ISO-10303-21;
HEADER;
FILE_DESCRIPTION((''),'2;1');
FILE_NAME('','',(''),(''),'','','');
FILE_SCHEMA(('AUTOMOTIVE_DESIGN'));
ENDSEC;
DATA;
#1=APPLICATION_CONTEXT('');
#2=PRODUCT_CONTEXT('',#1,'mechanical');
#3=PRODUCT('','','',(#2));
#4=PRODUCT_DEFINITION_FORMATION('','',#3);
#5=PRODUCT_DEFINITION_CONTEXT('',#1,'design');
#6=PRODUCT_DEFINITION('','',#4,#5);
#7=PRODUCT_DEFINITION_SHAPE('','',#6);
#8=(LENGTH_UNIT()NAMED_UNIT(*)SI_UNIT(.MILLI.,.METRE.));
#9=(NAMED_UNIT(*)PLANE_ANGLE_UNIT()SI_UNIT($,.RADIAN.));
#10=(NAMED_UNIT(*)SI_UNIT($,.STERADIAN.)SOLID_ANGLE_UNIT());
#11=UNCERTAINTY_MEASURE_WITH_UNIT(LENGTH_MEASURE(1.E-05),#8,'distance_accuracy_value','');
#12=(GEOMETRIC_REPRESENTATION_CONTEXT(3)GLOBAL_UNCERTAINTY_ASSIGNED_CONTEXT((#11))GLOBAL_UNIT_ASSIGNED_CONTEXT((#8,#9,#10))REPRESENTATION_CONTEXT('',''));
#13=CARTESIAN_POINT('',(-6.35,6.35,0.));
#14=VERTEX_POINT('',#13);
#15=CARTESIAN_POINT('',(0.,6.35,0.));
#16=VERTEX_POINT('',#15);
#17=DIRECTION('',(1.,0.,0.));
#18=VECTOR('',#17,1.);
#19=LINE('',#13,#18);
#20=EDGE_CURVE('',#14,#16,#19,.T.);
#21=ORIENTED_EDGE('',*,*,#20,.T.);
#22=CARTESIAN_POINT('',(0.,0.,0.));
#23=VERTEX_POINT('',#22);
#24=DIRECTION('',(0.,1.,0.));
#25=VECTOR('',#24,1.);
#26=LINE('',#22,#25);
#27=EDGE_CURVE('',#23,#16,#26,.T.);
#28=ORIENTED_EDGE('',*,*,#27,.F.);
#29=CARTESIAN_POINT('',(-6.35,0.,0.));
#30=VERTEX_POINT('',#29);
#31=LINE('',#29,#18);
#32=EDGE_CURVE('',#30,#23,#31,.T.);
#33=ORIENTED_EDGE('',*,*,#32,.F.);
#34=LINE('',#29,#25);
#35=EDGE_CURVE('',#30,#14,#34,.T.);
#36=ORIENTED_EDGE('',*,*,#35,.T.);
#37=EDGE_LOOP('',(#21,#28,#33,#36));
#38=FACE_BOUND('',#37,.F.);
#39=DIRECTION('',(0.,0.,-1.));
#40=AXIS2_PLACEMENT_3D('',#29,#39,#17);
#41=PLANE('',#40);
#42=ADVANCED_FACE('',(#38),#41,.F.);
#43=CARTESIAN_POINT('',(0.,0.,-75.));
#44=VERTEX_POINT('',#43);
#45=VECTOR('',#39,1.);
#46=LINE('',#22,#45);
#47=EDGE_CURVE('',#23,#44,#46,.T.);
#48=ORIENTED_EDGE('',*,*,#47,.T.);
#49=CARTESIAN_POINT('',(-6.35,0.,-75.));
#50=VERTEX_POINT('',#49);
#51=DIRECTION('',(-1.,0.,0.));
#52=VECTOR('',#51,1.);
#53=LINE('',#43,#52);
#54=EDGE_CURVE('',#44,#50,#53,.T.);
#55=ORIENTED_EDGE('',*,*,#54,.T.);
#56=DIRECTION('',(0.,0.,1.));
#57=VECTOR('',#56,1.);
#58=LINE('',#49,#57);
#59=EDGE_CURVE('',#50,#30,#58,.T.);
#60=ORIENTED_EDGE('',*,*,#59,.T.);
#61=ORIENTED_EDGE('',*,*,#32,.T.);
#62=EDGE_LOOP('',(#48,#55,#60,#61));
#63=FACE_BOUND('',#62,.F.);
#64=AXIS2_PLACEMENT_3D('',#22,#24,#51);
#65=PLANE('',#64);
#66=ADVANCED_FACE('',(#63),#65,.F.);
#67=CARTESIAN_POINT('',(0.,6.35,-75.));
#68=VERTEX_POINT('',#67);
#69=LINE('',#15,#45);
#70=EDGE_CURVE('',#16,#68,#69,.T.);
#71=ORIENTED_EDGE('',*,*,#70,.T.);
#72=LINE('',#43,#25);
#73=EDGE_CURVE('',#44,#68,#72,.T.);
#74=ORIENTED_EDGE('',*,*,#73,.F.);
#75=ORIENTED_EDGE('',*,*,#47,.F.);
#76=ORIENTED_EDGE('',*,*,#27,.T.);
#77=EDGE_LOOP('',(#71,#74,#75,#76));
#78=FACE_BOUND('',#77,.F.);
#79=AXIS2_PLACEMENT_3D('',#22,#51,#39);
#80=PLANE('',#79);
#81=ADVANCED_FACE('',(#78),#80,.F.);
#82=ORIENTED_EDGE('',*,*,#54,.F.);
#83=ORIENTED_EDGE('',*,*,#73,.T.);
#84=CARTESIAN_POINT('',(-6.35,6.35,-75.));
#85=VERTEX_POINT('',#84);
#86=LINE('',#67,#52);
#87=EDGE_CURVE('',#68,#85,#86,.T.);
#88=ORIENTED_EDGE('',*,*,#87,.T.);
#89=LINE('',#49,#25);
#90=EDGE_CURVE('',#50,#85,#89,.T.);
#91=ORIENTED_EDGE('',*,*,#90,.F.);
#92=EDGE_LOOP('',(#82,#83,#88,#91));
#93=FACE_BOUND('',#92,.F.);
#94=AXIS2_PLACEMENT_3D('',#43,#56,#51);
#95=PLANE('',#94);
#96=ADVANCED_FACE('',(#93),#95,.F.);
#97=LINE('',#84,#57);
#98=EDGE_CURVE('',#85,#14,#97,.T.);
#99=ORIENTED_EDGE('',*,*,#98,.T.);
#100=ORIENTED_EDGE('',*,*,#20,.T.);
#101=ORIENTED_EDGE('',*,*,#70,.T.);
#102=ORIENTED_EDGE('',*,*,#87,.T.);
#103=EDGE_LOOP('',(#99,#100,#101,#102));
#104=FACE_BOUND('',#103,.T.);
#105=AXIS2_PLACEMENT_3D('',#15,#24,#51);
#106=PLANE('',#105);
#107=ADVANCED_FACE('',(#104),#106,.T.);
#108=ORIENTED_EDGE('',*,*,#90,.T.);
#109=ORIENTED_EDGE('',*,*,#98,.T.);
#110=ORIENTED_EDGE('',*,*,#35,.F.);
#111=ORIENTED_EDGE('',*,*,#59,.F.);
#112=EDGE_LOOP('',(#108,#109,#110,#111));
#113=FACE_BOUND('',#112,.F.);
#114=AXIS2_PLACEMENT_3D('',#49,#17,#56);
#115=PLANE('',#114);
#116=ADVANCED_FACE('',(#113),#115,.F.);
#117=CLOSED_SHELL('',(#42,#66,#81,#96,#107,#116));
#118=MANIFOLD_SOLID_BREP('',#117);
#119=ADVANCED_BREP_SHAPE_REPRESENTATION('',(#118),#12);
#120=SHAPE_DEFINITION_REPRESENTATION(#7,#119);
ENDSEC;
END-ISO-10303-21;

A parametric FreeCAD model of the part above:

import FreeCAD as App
import Part
import Sketcher
Q = App.Units.Quantity


def add_polygon(sketch, points):
    """Adds a closed chain of lines whose ends are joined by coincident constraints."""
    first, n = sketch.GeometryCount, len(points)
    for a, b in zip(points, points[1:] + points[:1]):
        sketch.addGeometry(Part.LineSegment(App.Vector(*a, 0), App.Vector(*b, 0)), False)
    for i in range(n):
        sketch.addConstraint(Sketcher.Constraint("Coincident", first + i, 2, first + (i + 1) % n, 1))

doc = App.newDocument("Part")
body = doc.addObject("PartDesign::Body", "Body")

# Sketch on XZ plane
sketch1 = body.newObject("Sketcher::SketchObject", "Sketch")
sketch1.AttachmentSupport = (doc.getObject("XZ_Plane"), [""])
sketch1.MapMode = "FlatFace"
add_polygon(sketch1, [(-6, 0), (0, 0), (0, -75), (-6, -75)])  # lines 0-3
sketch1.addConstraint(Sketcher.Constraint("Horizontal", 0))
sketch1.addConstraint(Sketcher.Constraint("Vertical", 1))
sketch1.addConstraint(Sketcher.Constraint("Horizontal", 2))
sketch1.addConstraint(Sketcher.Constraint("Vertical", 3))
sketch1.addConstraint(Sketcher.Constraint("Coincident", 0, 2, -1, 1))
sketch1.addConstraint(Sketcher.Constraint("DistanceY", 1, 2, 1, 1, Q("75 mm")))
sketch1.addConstraint(Sketcher.Constraint("DistanceX", 0, 1, 0, 2, Q("6.35 mm")))
pad1 = body.newObject("PartDesign::Pad", "Pad")
pad1.Profile = sketch1
pad1.Length = 6.35
pad1.Reversed = True

doc.recompute()
